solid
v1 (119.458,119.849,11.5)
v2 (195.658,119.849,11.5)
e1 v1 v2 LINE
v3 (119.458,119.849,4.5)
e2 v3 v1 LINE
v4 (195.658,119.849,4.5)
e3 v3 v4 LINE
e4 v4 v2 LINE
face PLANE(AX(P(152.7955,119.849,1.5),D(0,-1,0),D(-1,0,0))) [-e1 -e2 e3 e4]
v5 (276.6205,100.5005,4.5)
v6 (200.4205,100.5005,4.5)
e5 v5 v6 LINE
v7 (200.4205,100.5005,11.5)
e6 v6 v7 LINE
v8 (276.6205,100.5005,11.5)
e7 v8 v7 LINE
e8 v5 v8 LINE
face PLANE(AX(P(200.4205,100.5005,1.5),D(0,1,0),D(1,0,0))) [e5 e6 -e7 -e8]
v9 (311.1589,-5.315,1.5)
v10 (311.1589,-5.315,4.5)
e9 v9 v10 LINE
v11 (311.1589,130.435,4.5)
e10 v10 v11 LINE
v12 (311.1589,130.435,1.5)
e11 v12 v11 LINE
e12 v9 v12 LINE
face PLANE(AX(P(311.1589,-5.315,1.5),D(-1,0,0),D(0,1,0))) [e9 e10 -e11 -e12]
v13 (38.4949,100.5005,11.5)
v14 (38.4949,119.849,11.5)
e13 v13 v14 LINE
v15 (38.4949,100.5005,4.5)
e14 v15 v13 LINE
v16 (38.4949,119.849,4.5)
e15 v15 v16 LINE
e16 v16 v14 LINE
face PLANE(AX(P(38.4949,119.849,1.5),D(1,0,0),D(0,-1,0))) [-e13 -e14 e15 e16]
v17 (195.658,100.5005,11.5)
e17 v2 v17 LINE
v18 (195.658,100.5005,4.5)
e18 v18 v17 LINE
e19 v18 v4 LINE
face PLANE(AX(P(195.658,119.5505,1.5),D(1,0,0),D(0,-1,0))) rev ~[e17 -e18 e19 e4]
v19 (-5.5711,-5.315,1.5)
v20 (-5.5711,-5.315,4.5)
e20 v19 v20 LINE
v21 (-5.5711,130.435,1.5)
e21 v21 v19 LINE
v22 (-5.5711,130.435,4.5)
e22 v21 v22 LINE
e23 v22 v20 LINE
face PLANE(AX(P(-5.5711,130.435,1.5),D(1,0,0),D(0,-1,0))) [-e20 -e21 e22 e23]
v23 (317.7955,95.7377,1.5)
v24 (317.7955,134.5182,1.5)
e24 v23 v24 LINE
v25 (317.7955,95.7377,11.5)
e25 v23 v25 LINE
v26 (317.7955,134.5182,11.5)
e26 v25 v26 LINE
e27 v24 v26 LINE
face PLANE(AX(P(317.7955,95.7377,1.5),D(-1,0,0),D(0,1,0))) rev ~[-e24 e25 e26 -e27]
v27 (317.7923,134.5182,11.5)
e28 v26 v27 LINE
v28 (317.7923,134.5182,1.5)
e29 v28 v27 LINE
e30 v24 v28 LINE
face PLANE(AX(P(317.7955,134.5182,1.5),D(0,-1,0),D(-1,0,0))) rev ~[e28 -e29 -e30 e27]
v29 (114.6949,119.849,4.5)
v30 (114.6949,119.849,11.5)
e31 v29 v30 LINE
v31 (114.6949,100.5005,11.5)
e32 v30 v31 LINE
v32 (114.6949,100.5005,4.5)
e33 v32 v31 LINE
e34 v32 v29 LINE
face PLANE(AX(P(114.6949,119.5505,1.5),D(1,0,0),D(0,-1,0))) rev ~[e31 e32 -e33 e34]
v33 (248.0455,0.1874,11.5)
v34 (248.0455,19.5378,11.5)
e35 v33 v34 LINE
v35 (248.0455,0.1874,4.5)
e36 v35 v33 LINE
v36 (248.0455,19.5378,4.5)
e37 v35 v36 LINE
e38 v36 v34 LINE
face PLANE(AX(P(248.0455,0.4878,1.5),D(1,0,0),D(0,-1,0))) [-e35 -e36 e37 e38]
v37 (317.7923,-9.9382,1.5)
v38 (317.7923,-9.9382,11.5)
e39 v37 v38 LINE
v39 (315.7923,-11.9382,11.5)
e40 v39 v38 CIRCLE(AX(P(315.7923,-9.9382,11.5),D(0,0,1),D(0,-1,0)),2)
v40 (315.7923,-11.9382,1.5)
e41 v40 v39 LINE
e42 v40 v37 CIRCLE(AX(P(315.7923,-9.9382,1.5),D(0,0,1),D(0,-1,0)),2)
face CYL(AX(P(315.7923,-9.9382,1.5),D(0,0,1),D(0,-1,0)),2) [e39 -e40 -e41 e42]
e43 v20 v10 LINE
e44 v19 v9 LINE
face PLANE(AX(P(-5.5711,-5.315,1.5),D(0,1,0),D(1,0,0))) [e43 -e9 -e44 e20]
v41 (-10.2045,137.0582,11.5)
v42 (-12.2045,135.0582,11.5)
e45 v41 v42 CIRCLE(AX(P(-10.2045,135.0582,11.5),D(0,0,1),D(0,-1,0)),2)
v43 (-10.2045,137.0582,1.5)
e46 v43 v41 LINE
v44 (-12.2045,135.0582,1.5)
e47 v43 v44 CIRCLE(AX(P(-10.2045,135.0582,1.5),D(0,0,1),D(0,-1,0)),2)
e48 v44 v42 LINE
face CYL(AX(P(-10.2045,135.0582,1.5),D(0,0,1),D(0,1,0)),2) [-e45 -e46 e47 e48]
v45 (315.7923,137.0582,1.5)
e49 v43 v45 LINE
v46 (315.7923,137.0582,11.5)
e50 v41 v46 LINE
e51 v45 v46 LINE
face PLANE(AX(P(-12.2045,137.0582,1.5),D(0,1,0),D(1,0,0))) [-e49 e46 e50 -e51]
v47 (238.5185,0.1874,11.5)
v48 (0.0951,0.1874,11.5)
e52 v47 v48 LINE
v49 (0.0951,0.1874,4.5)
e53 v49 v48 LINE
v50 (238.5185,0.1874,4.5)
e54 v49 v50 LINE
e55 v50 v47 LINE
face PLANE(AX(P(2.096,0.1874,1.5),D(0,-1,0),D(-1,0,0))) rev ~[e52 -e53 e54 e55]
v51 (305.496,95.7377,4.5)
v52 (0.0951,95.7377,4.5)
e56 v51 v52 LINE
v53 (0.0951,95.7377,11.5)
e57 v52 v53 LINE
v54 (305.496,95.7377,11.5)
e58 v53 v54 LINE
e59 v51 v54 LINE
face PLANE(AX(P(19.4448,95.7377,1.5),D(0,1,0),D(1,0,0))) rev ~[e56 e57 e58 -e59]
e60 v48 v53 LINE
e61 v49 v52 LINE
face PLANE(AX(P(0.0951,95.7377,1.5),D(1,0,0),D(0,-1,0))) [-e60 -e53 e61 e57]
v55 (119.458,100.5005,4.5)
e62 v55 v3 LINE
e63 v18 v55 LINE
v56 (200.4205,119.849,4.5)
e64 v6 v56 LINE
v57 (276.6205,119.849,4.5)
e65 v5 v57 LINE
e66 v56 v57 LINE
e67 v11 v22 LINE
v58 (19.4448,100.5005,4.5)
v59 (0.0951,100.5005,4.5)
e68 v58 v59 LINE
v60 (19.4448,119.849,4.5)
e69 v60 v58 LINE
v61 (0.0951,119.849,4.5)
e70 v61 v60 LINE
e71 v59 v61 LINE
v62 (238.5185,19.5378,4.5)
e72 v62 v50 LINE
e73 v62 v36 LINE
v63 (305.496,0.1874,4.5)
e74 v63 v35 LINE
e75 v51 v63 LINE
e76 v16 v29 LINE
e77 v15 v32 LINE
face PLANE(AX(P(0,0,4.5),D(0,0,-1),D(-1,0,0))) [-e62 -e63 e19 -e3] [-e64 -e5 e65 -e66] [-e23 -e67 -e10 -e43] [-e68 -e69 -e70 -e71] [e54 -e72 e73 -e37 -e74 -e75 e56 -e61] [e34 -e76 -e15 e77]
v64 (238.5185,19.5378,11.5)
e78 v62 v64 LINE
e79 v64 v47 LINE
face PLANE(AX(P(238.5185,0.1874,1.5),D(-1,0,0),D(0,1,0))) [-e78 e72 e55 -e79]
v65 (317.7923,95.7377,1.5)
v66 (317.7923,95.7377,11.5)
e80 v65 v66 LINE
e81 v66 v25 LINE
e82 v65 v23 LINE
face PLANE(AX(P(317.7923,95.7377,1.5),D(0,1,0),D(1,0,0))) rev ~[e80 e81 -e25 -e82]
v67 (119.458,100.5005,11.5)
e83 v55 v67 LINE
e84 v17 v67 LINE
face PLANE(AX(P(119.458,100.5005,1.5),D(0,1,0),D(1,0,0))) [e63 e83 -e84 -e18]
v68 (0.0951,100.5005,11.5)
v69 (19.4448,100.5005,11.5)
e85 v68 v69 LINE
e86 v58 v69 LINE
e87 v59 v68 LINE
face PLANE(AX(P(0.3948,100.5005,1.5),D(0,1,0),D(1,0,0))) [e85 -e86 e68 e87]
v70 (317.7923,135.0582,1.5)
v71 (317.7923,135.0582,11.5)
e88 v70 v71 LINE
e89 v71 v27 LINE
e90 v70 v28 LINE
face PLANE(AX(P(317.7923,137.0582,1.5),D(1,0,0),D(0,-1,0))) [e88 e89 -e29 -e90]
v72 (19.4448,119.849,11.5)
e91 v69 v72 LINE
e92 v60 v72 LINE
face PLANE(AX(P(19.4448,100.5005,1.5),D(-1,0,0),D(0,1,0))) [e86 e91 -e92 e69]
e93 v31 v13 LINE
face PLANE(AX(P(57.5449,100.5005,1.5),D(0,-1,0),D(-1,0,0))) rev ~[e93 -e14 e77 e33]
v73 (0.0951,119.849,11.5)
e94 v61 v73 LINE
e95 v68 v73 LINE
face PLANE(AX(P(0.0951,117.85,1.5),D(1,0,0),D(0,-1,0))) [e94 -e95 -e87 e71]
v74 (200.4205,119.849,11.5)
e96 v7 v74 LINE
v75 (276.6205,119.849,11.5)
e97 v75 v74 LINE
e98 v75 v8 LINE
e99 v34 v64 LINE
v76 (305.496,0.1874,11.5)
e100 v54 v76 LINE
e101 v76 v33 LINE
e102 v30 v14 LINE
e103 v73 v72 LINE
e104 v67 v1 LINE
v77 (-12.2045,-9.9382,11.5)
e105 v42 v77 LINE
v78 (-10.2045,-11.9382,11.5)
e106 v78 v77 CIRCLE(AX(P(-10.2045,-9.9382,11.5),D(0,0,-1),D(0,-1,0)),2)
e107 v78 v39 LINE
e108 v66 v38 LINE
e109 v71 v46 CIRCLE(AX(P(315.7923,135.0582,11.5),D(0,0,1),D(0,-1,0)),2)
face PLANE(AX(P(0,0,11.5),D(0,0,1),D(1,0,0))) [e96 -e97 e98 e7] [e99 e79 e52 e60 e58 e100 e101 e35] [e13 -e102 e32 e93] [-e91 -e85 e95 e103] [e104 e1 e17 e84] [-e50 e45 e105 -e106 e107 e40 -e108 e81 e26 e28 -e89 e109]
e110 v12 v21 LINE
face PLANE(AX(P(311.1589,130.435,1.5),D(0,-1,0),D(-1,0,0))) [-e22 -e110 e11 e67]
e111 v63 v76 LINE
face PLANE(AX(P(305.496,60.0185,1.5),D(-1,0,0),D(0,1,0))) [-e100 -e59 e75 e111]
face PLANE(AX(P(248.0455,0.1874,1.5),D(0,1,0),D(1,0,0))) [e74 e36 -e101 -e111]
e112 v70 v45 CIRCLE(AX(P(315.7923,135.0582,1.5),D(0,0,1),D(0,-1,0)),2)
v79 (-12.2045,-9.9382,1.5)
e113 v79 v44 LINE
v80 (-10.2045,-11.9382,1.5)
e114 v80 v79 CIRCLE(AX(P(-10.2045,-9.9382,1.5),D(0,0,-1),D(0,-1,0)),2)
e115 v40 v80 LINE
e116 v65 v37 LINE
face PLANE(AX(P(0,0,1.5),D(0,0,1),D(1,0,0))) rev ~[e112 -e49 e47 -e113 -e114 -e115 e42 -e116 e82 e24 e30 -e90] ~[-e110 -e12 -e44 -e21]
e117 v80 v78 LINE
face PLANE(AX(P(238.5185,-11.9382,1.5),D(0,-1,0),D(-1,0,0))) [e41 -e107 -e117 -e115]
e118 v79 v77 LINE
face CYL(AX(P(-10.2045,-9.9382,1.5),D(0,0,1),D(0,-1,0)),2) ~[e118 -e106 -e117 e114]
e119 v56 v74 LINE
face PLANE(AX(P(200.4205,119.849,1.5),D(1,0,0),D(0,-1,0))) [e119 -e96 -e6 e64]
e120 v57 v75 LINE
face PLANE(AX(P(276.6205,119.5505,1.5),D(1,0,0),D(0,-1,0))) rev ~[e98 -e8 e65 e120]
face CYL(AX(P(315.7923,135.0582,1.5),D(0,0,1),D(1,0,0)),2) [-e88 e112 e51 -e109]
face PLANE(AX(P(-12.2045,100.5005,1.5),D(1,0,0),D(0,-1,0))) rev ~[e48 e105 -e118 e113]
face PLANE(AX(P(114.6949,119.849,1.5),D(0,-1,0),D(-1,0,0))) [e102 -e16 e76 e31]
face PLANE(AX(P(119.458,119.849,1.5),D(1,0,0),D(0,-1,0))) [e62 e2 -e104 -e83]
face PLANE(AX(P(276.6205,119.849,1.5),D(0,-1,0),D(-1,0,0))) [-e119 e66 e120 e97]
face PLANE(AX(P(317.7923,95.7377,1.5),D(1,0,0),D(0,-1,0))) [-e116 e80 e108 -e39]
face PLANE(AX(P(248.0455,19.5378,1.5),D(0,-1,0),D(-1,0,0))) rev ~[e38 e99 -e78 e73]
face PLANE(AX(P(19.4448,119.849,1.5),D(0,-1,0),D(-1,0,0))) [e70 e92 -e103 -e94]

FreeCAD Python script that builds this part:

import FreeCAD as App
import Part
import Sketcher
Q = App.Units.Quantity


def edges_at(feature, points):
    """Names of the edges that pass closest to the given points."""
    edges = feature.Shape.Edges
    near = lambda p: min(range(len(edges)), key=lambda i: edges[i].distToShape(Part.Vertex(*p))[0])
    return sorted({f"Edge{near(p) + 1}" for p in points})


def add_polygon(sketch, points):
    """Adds a closed chain of lines whose ends are joined by coincident constraints."""
    first, n = sketch.GeometryCount, len(points)
    for a, b in zip(points, points[1:] + points[:1]):
        sketch.addGeometry(Part.LineSegment(App.Vector(*a, 0), App.Vector(*b, 0)), False)
    for i in range(n):
        sketch.addConstraint(Sketcher.Constraint("Coincident", first + i, 2, first + (i + 1) % n, 1))

doc = App.newDocument("Part")
params = doc.addObject("Spreadsheet::Sheet", "Params")
for row, (alias, value) in enumerate([
    ("sketch1_height", "0.1 in"),
    ("sketch1_width", "12.992 in"),
    ("sketch1_width2", "3 in"),
    ("sketch1_height2", "5.866 in"),
    ("pad1_length", "0.3937008 in"),
    ("pocket1_length", "0.1181102 in"),
    ("fillet_radius", "2 mm"),
], start=1):
    params.set(f"A{row}", alias)
    params.set(f"B{row}", "=" + value)
    params.setAlias(f"B{row}", alias)

body = doc.addObject("PartDesign::Body", "Body")

sketch1 = body.newObject("Sketcher::SketchObject", "Sketch")
sketch1.AttachmentSupport = (doc.getObject("XY_Plane"), [""])
sketch1.MapMode = "FlatFace"
sketch1.AttachmentOffset = App.Placement(App.Vector(0, 0, 1.5), App.Rotation())
add_polygon(sketch1, [(-12.2045, -11.9382), (317.7923, -11.9382), (317.7923, 95.7377), (317.7955, 95.7377), (317.7955, 134.5182), (317.7923, 134.5182), (317.7923, 137.0582), (-12.2045, 137.0582)])
add_polygon(sketch1, [(19.4448, 100.5005), (0.0951, 100.5005), (0.0951, 119.849), (19.4448, 119.849)])
add_polygon(sketch1, [(38.4949, 100.5005), (38.4949, 119.849), (114.6949, 119.849), (114.6949, 100.5005)])
add_polygon(sketch1, [(119.458, 100.5005), (119.458, 119.849), (195.658, 119.849), (195.658, 100.5005)])
add_polygon(sketch1, [(305.496, 95.7377), (305.496, 0.1874), (248.0455, 0.1874), (248.0455, 19.5378), (238.5185, 19.5378), (238.5185, 0.1874), (0.0951, 0.1874), (0.0951, 95.7377)])
add_polygon(sketch1, [(200.4205, 100.5005), (200.4205, 119.849), (276.6205, 119.849), (276.6205, 100.5005)])
sketch1.addConstraint([
    Sketcher.Constraint("Horizontal", 0),
    Sketcher.Constraint("Vertical", 1),
    Sketcher.Constraint("Horizontal", 2),
    Sketcher.Constraint("Vertical", 3),
    Sketcher.Constraint("Horizontal", 4),
    Sketcher.Constraint("Vertical", 5),
    Sketcher.Constraint("Horizontal", 6),
    Sketcher.Constraint("Vertical", 7),
    Sketcher.Constraint("Horizontal", 8),
    Sketcher.Constraint("Vertical", 9),
    Sketcher.Constraint("Horizontal", 10),
    Sketcher.Constraint("Vertical", 11),
    Sketcher.Constraint("Vertical", 12),
    Sketcher.Constraint("Horizontal", 13),
    Sketcher.Constraint("Vertical", 14),
    Sketcher.Constraint("Horizontal", 15),
    Sketcher.Constraint("Vertical", 16),
    Sketcher.Constraint("Horizontal", 17),
    Sketcher.Constraint("Vertical", 18),
    Sketcher.Constraint("Horizontal", 19),
    Sketcher.Constraint("Vertical", 20),
    Sketcher.Constraint("Horizontal", 21),
    Sketcher.Constraint("Vertical", 22),
    Sketcher.Constraint("Horizontal", 23),
    Sketcher.Constraint("Vertical", 24),
    Sketcher.Constraint("Horizontal", 25),
    Sketcher.Constraint("Vertical", 26),
    Sketcher.Constraint("Horizontal", 27),
    Sketcher.Constraint("Vertical", 28),
    Sketcher.Constraint("Horizontal", 29),
    Sketcher.Constraint("Vertical", 30),
    Sketcher.Constraint("Horizontal", 31),
    Sketcher.Constraint("Horizontal", 10, 2, 12, 2),
    Sketcher.Constraint("Horizontal", 11, 2, 14, 2),
    Sketcher.Constraint("Horizontal", 13, 2, 16, 2),
    Sketcher.Constraint("Horizontal", 15, 2, 18, 2),
    Sketcher.Constraint("Horizontal", 21, 2, 24, 2),
    Sketcher.Constraint("Horizontal", 2, 2, 26, 2),
    Sketcher.Constraint("Horizontal", 17, 2, 28, 2),
    Sketcher.Constraint("Horizontal", 19, 2, 30, 2),
    Sketcher.Constraint("Vertical", 1, 2, 4, 2),
    Sketcher.Constraint("Vertical", 9, 2, 25, 2),
    Sketcher.Constraint("Equal", 15, 17),
    Sketcher.Constraint("Equal", 19, 29),
    Sketcher.Constraint("DistanceY", 5, 1, 5, 2, Q("0.1 in")),
    Sketcher.Constraint("DistanceX", 0, 1, 0, 2, Q("12.992 in")),
    Sketcher.Constraint("DistanceX", 13, 1, 13, 2, Q("3 in")),
    Sketcher.Constraint("DistanceY", 7, 2, 7, 1, Q("5.866 in")),
    Sketcher.Constraint("DistanceY", 22, 2, 1, 2, Q("3 in")),
    Sketcher.Constraint("DistanceY", 0, 2, -1, 1, Q("0.47 in")),
    Sketcher.Constraint("DistanceX", 6, 2, 3, 2, 330.0),
    Sketcher.Constraint("DistanceX", 10, 2, 12, 2, Q("0.75 in")),
    Sketcher.Constraint("DistanceX", 8, 2, 8, 1, Q("0.7618 in")),
    Sketcher.Constraint("DistanceY", 1, 1, 1, 2, Q("4.2392 in")),
    Sketcher.Constraint("DistanceX", 18, 2, 21, 2, Q("2.0625 in")),
    Sketcher.Constraint("DistanceY", 22, 2, 18, 2, Q("3.1875 in")),
    Sketcher.Constraint("DistanceX", 17, 2, 28, 2, Q("0.1875 in")),
    Sketcher.Constraint("DistanceX", 21, 2, 21, 1, 57.4505),
    Sketcher.Constraint("DistanceX", 23, 2, 23, 1, 9.527),
    Sketcher.Constraint("DistanceX", 25, 2, 25, 1, 238.4234),
    Sketcher.Constraint("DistanceY", 9, 1, 9, 2, 19.3485),
    Sketcher.Constraint("DistanceY", 20, 2, 20, 1, 95.5503),
    Sketcher.Constraint("DistanceX", -1, 1, 0, 2, Q("12.5115 in")),
    Sketcher.Constraint("DistanceX", -1, 1, 20, 2, Q("12.0274 in")),
])
sketch1.setExpression("Constraints[76]", "Params.sketch1_height")
sketch1.setExpression("Constraints[77]", "Params.sketch1_width")
sketch1.setExpression("Constraints[78]", "Params.sketch1_width2")
sketch1.setExpression("Constraints[79]", "Params.sketch1_height2")
pad1 = body.newObject("PartDesign::Pad", "Pad")
pad1.Profile = sketch1
pad1.setExpression("Length", "Params.pad1_length")

sketch2 = body.newObject("Sketcher::SketchObject", "Sketch001")
sketch2.AttachmentSupport = (doc.getObject("XY_Plane"), [""])
sketch2.MapMode = "FlatFace"
sketch2.AttachmentOffset = App.Placement(App.Vector(0, 0, 1.5), App.Rotation())
add_polygon(sketch2, [(-6, 130), (311, 130), (311, -5), (-6, -5)])
sketch2.addConstraint([
    Sketcher.Constraint("Horizontal", 0),
    Sketcher.Constraint("Vertical", 1),
    Sketcher.Constraint("Horizontal", 2),
    Sketcher.Constraint("Vertical", 3),
    Sketcher.Constraint("DistanceY", 1, 2, 1, 1, Q("5.3445 in")),
    Sketcher.Constraint("DistanceX", 0, 1, 0, 2, 316.73),
    Sketcher.Constraint("DistanceX", -1, 1, 0, 2, 311.159),
    Sketcher.Constraint("DistanceY", -1, 1, 0, 2, 130.435),
])
pocket1 = body.newObject("PartDesign::Pocket", "Pocket")
pocket1.Profile = sketch2
pocket1.setExpression("Length", "Params.pocket1_length")
pocket1.Reversed = True
doc.recompute()

fillet = body.newObject("PartDesign::Fillet", "Fillet")
fillet.Base = (pocket1, edges_at(pocket1, [
    (-12.204, 137.058, 6.5),
    (317.792, 137.058, 6.5),
    (317.792, -11.938, 6.5),
    (-12.204, -11.938, 6.5),
]))
fillet.setExpression("Radius", "Params.fillet_radius")

doc.recompute()
